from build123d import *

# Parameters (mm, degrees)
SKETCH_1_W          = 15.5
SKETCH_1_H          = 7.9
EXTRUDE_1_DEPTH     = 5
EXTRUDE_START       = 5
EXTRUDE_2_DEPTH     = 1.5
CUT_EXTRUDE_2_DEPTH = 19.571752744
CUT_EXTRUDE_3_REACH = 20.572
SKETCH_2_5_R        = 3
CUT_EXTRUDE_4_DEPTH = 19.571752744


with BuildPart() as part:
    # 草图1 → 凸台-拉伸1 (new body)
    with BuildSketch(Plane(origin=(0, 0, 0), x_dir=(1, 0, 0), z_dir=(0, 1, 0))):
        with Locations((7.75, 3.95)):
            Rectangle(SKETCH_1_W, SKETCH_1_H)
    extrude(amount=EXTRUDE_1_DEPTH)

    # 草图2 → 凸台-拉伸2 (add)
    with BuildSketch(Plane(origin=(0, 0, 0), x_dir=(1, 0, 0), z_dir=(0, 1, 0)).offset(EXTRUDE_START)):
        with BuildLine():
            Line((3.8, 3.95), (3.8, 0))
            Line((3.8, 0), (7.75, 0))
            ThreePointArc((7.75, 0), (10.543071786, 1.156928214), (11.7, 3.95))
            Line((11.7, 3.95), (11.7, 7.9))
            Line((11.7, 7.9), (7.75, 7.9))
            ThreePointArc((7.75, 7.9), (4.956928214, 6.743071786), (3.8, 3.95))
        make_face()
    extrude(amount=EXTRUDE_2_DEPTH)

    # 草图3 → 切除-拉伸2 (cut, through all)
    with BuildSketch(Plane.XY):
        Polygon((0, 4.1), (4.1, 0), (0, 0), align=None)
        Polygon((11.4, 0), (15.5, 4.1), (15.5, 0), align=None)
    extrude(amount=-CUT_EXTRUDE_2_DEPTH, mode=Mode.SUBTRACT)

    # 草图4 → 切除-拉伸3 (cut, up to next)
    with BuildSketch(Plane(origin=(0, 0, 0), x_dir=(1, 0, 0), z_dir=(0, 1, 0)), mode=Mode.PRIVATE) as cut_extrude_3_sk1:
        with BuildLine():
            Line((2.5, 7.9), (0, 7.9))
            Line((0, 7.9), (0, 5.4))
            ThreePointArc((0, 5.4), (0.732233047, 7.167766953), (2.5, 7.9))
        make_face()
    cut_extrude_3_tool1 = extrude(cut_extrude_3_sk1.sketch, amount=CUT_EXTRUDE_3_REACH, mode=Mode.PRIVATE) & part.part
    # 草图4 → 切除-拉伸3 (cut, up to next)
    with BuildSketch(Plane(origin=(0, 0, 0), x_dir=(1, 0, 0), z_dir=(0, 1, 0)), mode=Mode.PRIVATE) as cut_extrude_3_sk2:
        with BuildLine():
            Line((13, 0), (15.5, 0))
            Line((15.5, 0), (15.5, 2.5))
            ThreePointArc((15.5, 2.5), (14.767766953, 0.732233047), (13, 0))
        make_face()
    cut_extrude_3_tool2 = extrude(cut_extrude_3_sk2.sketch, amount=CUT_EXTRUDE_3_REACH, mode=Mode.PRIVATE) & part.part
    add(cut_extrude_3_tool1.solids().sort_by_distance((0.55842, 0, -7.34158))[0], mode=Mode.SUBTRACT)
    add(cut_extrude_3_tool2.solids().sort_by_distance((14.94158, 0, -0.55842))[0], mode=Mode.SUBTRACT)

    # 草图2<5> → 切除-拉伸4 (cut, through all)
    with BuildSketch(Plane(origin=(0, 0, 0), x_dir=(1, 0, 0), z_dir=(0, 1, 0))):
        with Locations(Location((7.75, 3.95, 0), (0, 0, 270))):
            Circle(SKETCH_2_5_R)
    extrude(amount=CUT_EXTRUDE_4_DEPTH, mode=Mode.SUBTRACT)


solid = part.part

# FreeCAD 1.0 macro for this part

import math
import FreeCAD as App
import Part
import Sketcher

V = App.Vector


def add_polygon(sketch, points):
    """Adds a closed chain of lines whose ends are joined by coincident constraints."""
    first, n = sketch.GeometryCount, len(points)
    for a, b in zip(points, points[1:] + points[:1]):
        sketch.addGeometry(Part.LineSegment(App.Vector(*a, 0), App.Vector(*b, 0)), False)
    for i in range(n):
        sketch.addConstraint(Sketcher.Constraint("Coincident", first + i, 2, first + (i + 1) % n, 1))

doc = App.newDocument("Part")
params = doc.addObject("Spreadsheet::Sheet", "Params")
for row, (alias, value) in enumerate([
    ("sketch1_width", "15.5 mm"),
    ("sketch1_height", "7.9 mm"),
    ("pad1_length", "5 mm"),
    ("sketch2_radius", "3.95 mm"),
    ("pad2_length", "1.5 mm"),
    ("sketch3_width", "4.1 mm"),
    ("sketch4_radius", "2.5 mm"),
    ("pocket2_length", "5 mm"),
    ("sketch5_radius", "2.5 mm"),
    ("pocket3_length", "5 mm"),
    ("sketch6_diameter", "6 mm"),
], start=1):
    params.set(f"A{row}", alias)
    params.set(f"B{row}", "=" + value)
    params.setAlias(f"B{row}", alias)

body = doc.addObject("PartDesign::Body", "Body")

# Sketch on XZ plane
sketch1 = body.newObject("Sketcher::SketchObject", "Sketch")
sketch1.AttachmentSupport = (doc.getObject("XZ_Plane"), [""])
sketch1.MapMode = "FlatFace"
add_polygon(sketch1, [(0, -8), (0, 0), (16, 0), (16, -8)])  # lines 0-3
sketch1.addConstraint(Sketcher.Constraint("Vertical", 0))
sketch1.addConstraint(Sketcher.Constraint("Horizontal", 1))
sketch1.addConstraint(Sketcher.Constraint("Vertical", 2))
sketch1.addConstraint(Sketcher.Constraint("Horizontal", 3))
sketch1.addConstraint(Sketcher.Constraint("Coincident", 0, 2, -1, 1))
sketch1.addConstraint(Sketcher.Constraint("DistanceX", 1, 1, 1, 2, 15.5))
sketch1.addConstraint(Sketcher.Constraint("DistanceY", 0, 1, 0, 2, 7.9))
sketch1.setExpression("Constraints[9]", "Params.sketch1_width")
sketch1.setExpression("Constraints[10]", "Params.sketch1_height")
pad1 = body.newObject("PartDesign::Pad", "Pad")
pad1.Profile = sketch1
pad1.setExpression("Length", "Params.pad1_length")
pad1.Reversed = True

# Sketch on XZ plane
sketch2 = body.newObject("Sketcher::SketchObject", "Sketch001")
sketch2.AttachmentSupport = (doc.getObject("XZ_Plane"), [""])
sketch2.MapMode = "FlatFace"
sketch2.AttachmentOffset = App.Placement(V(0, 0, -5), App.Rotation())
sketch2.addGeometry(Part.LineSegment(V(3.8, -4, 0), V(3.8, 0, 0)), False)
sketch2.addGeometry(Part.LineSegment(V(3.8, 0, 0), V(7.8, 0, 0)), False)
sketch2.addGeometry(Part.ArcOfCircle(Part.Circle(V(7.8, -3.9, 0), V(0, 0, 1), 3.9), math.radians(0), math.radians(90)), False)
sketch2.addGeometry(Part.LineSegment(V(11.7, -4, 0), V(11.7, -7.9, 0)), False)
sketch2.addGeometry(Part.LineSegment(V(11.7, -7.9, 0), V(7.8, -7.9, 0)), False)
sketch2.addGeometry(Part.ArcOfCircle(Part.Circle(V(7.7, -4, 0), V(0, 0, 1), 3.9), math.radians(180), math.radians(270)), False)
sketch2.addConstraint(Sketcher.Constraint("Coincident", 0, 2, 1, 1))
sketch2.addConstraint(Sketcher.Constraint("Tangent", 1, 2, 2, 2))
sketch2.addConstraint(Sketcher.Constraint("Tangent", 2, 1, 3, 1))
sketch2.addConstraint(Sketcher.Constraint("Coincident", 3, 2, 4, 1))
sketch2.addConstraint(Sketcher.Constraint("Tangent", 4, 2, 5, 2))
sketch2.addConstraint(Sketcher.Constraint("Tangent", 5, 1, 0, 1))
sketch2.addConstraint(Sketcher.Constraint("Vertical", 0))
sketch2.addConstraint(Sketcher.Constraint("Horizontal", 1))
sketch2.addConstraint(Sketcher.Constraint("Vertical", 3))
sketch2.addConstraint(Sketcher.Constraint("Horizontal", 4))
sketch2.addConstraint(Sketcher.Constraint("Coincident", 5, 3, 2, 3))
sketch2.addConstraint(Sketcher.Constraint("Equal", 2, 5))
sketch2.addConstraint(Sketcher.Constraint("PointOnObject", 0, 2, -1))
sketch2.addConstraint(Sketcher.Constraint("Radius", 2, 3.95))
sketch2.addConstraint(Sketcher.Constraint("DistanceX", -1, 1, 0, 2, 3.8))
sketch2.setExpression("Constraints[13]", "Params.sketch2_radius")
pad2 = body.newObject("PartDesign::Pad", "Pad001")
pad2.Profile = sketch2
pad2.setExpression("Length", "Params.pad2_length")
pad2.Reversed = True

# Sketch on XY plane
sketch3 = body.newObject("Sketcher::SketchObject", "Sketch002")
sketch3.AttachmentSupport = (doc.getObject("XY_Plane"), [""])
sketch3.MapMode = "FlatFace"
add_polygon(sketch3, [(4.1, 0), (0, 4.1), (0, 0)])  # lines 0-2
add_polygon(sketch3, [(15.5, 4.1), (11.4, 0), (15.5, 0)])  # lines 3-5
sketch3.addConstraint(Sketcher.Constraint("Vertical", 1))
sketch3.addConstraint(Sketcher.Constraint("Horizontal", 2))
sketch3.addConstraint(Sketcher.Constraint("Horizontal", 4))
sketch3.addConstraint(Sketcher.Constraint("Vertical", 5))
sketch3.addConstraint(Sketcher.Constraint("Coincident", 1, 2, -1, 1))
sketch3.addConstraint(Sketcher.Constraint("PointOnObject", 3, 2, -1))
sketch3.addConstraint(Sketcher.Constraint("Perpendicular", 0, 3))
sketch3.addConstraint(Sketcher.Constraint("Horizontal", 0, 2, 5, 2))
sketch3.addConstraint(Sketcher.Constraint("Equal", 2, 4))
sketch3.addConstraint(Sketcher.Constraint("DistanceX", 2, 1, 2, 2, 4.1))
sketch3.addConstraint(Sketcher.Constraint("DistanceX", -1, 1, 3, 2, 11.4))
sketch3.setExpression("Constraints[15]", "Params.sketch3_width")
pocket1 = body.newObject("PartDesign::Pocket", "Pocket")
pocket1.Profile = sketch3
pocket1.Type = "ThroughAll"

# Sketch on XZ plane
sketch4 = body.newObject("Sketcher::SketchObject", "Sketch003")
sketch4.AttachmentSupport = (doc.getObject("XZ_Plane"), [""])
sketch4.MapMode = "FlatFace"
sketch4.addGeometry(Part.LineSegment(V(2.5, -7.9, 0), V(0, -7.9, 0)), False)
sketch4.addGeometry(Part.LineSegment(V(0, -7.9, 0), V(0, -5.4, 0)), False)
sketch4.addGeometry(Part.ArcOfCircle(Part.Circle(V(2.5, -5.4, 0), V(0, 0, 1), 2.5), math.radians(180), math.radians(270)), False)
sketch4.addConstraint(Sketcher.Constraint("Coincident", 0, 2, 1, 1))
sketch4.addConstraint(Sketcher.Constraint("Tangent", 1, 2, 2, 1))
sketch4.addConstraint(Sketcher.Constraint("Tangent", 2, 2, 0, 1))
sketch4.addConstraint(Sketcher.Constraint("Horizontal", 0))
sketch4.addConstraint(Sketcher.Constraint("Vertical", 1))
sketch4.addConstraint(Sketcher.Constraint("PointOnObject", 0, 2, -2))
sketch4.addConstraint(Sketcher.Constraint("Radius", 2, 2.5))
sketch4.addConstraint(Sketcher.Constraint("DistanceY", 2, 3, -1, 1, 5.4))
sketch4.setExpression("Constraints[6]", "Params.sketch4_radius")
pocket2 = body.newObject("PartDesign::Pocket", "Pocket001")
pocket2.Profile = sketch4
pocket2.setExpression("Length", "Params.pocket2_length")

# Sketch on XZ plane
sketch5 = body.newObject("Sketcher::SketchObject", "Sketch004")
sketch5.AttachmentSupport = (doc.getObject("XZ_Plane"), [""])
sketch5.MapMode = "FlatFace"
sketch5.addGeometry(Part.LineSegment(V(13, 0, 0), V(15.5, 0, 0)), False)
sketch5.addGeometry(Part.LineSegment(V(15.5, 0, 0), V(15.5, -2.5, 0)), False)
sketch5.addGeometry(Part.ArcOfCircle(Part.Circle(V(13, -2.5, 0), V(0, 0, 1), 2.5), math.radians(0), math.radians(90)), False)
sketch5.addConstraint(Sketcher.Constraint("Coincident", 0, 2, 1, 1))
sketch5.addConstraint(Sketcher.Constraint("Tangent", 1, 2, 2, 1))
sketch5.addConstraint(Sketcher.Constraint("Tangent", 2, 2, 0, 1))
sketch5.addConstraint(Sketcher.Constraint("Horizontal", 0))
sketch5.addConstraint(Sketcher.Constraint("Vertical", 1))
sketch5.addConstraint(Sketcher.Constraint("PointOnObject", 0, 2, -1))
sketch5.addConstraint(Sketcher.Constraint("Radius", 2, 2.5))
sketch5.addConstraint(Sketcher.Constraint("DistanceX", -1, 1, 2, 3, 13.0))
sketch5.setExpression("Constraints[6]", "Params.sketch5_radius")
pocket3 = body.newObject("PartDesign::Pocket", "Pocket002")
pocket3.Profile = sketch5
pocket3.setExpression("Length", "Params.pocket3_length")

# Sketch on XZ plane
sketch6 = body.newObject("Sketcher::SketchObject", "Sketch005")
sketch6.AttachmentSupport = (doc.getObject("XZ_Plane"), [""])
sketch6.MapMode = "FlatFace"
sketch6.addGeometry(Part.Circle(V(7.8, -4, 0), V(0, 0, 1), 3), False)
sketch6.addConstraint(Sketcher.Constraint("Diameter", 0, 6.0))
sketch6.addConstraint(Sketcher.Constraint("DistanceX", -1, 1, 0, 3, 7.75))
sketch6.addConstraint(Sketcher.Constraint("DistanceY", 0, 3, -1, 1, 3.95))
sketch6.setExpression("Constraints[0]", "Params.sketch6_diameter")
pocket4 = body.newObject("PartDesign::Pocket", "Pocket003")
pocket4.Profile = sketch6
pocket4.Type = "ThroughAll"

doc.recompute()
